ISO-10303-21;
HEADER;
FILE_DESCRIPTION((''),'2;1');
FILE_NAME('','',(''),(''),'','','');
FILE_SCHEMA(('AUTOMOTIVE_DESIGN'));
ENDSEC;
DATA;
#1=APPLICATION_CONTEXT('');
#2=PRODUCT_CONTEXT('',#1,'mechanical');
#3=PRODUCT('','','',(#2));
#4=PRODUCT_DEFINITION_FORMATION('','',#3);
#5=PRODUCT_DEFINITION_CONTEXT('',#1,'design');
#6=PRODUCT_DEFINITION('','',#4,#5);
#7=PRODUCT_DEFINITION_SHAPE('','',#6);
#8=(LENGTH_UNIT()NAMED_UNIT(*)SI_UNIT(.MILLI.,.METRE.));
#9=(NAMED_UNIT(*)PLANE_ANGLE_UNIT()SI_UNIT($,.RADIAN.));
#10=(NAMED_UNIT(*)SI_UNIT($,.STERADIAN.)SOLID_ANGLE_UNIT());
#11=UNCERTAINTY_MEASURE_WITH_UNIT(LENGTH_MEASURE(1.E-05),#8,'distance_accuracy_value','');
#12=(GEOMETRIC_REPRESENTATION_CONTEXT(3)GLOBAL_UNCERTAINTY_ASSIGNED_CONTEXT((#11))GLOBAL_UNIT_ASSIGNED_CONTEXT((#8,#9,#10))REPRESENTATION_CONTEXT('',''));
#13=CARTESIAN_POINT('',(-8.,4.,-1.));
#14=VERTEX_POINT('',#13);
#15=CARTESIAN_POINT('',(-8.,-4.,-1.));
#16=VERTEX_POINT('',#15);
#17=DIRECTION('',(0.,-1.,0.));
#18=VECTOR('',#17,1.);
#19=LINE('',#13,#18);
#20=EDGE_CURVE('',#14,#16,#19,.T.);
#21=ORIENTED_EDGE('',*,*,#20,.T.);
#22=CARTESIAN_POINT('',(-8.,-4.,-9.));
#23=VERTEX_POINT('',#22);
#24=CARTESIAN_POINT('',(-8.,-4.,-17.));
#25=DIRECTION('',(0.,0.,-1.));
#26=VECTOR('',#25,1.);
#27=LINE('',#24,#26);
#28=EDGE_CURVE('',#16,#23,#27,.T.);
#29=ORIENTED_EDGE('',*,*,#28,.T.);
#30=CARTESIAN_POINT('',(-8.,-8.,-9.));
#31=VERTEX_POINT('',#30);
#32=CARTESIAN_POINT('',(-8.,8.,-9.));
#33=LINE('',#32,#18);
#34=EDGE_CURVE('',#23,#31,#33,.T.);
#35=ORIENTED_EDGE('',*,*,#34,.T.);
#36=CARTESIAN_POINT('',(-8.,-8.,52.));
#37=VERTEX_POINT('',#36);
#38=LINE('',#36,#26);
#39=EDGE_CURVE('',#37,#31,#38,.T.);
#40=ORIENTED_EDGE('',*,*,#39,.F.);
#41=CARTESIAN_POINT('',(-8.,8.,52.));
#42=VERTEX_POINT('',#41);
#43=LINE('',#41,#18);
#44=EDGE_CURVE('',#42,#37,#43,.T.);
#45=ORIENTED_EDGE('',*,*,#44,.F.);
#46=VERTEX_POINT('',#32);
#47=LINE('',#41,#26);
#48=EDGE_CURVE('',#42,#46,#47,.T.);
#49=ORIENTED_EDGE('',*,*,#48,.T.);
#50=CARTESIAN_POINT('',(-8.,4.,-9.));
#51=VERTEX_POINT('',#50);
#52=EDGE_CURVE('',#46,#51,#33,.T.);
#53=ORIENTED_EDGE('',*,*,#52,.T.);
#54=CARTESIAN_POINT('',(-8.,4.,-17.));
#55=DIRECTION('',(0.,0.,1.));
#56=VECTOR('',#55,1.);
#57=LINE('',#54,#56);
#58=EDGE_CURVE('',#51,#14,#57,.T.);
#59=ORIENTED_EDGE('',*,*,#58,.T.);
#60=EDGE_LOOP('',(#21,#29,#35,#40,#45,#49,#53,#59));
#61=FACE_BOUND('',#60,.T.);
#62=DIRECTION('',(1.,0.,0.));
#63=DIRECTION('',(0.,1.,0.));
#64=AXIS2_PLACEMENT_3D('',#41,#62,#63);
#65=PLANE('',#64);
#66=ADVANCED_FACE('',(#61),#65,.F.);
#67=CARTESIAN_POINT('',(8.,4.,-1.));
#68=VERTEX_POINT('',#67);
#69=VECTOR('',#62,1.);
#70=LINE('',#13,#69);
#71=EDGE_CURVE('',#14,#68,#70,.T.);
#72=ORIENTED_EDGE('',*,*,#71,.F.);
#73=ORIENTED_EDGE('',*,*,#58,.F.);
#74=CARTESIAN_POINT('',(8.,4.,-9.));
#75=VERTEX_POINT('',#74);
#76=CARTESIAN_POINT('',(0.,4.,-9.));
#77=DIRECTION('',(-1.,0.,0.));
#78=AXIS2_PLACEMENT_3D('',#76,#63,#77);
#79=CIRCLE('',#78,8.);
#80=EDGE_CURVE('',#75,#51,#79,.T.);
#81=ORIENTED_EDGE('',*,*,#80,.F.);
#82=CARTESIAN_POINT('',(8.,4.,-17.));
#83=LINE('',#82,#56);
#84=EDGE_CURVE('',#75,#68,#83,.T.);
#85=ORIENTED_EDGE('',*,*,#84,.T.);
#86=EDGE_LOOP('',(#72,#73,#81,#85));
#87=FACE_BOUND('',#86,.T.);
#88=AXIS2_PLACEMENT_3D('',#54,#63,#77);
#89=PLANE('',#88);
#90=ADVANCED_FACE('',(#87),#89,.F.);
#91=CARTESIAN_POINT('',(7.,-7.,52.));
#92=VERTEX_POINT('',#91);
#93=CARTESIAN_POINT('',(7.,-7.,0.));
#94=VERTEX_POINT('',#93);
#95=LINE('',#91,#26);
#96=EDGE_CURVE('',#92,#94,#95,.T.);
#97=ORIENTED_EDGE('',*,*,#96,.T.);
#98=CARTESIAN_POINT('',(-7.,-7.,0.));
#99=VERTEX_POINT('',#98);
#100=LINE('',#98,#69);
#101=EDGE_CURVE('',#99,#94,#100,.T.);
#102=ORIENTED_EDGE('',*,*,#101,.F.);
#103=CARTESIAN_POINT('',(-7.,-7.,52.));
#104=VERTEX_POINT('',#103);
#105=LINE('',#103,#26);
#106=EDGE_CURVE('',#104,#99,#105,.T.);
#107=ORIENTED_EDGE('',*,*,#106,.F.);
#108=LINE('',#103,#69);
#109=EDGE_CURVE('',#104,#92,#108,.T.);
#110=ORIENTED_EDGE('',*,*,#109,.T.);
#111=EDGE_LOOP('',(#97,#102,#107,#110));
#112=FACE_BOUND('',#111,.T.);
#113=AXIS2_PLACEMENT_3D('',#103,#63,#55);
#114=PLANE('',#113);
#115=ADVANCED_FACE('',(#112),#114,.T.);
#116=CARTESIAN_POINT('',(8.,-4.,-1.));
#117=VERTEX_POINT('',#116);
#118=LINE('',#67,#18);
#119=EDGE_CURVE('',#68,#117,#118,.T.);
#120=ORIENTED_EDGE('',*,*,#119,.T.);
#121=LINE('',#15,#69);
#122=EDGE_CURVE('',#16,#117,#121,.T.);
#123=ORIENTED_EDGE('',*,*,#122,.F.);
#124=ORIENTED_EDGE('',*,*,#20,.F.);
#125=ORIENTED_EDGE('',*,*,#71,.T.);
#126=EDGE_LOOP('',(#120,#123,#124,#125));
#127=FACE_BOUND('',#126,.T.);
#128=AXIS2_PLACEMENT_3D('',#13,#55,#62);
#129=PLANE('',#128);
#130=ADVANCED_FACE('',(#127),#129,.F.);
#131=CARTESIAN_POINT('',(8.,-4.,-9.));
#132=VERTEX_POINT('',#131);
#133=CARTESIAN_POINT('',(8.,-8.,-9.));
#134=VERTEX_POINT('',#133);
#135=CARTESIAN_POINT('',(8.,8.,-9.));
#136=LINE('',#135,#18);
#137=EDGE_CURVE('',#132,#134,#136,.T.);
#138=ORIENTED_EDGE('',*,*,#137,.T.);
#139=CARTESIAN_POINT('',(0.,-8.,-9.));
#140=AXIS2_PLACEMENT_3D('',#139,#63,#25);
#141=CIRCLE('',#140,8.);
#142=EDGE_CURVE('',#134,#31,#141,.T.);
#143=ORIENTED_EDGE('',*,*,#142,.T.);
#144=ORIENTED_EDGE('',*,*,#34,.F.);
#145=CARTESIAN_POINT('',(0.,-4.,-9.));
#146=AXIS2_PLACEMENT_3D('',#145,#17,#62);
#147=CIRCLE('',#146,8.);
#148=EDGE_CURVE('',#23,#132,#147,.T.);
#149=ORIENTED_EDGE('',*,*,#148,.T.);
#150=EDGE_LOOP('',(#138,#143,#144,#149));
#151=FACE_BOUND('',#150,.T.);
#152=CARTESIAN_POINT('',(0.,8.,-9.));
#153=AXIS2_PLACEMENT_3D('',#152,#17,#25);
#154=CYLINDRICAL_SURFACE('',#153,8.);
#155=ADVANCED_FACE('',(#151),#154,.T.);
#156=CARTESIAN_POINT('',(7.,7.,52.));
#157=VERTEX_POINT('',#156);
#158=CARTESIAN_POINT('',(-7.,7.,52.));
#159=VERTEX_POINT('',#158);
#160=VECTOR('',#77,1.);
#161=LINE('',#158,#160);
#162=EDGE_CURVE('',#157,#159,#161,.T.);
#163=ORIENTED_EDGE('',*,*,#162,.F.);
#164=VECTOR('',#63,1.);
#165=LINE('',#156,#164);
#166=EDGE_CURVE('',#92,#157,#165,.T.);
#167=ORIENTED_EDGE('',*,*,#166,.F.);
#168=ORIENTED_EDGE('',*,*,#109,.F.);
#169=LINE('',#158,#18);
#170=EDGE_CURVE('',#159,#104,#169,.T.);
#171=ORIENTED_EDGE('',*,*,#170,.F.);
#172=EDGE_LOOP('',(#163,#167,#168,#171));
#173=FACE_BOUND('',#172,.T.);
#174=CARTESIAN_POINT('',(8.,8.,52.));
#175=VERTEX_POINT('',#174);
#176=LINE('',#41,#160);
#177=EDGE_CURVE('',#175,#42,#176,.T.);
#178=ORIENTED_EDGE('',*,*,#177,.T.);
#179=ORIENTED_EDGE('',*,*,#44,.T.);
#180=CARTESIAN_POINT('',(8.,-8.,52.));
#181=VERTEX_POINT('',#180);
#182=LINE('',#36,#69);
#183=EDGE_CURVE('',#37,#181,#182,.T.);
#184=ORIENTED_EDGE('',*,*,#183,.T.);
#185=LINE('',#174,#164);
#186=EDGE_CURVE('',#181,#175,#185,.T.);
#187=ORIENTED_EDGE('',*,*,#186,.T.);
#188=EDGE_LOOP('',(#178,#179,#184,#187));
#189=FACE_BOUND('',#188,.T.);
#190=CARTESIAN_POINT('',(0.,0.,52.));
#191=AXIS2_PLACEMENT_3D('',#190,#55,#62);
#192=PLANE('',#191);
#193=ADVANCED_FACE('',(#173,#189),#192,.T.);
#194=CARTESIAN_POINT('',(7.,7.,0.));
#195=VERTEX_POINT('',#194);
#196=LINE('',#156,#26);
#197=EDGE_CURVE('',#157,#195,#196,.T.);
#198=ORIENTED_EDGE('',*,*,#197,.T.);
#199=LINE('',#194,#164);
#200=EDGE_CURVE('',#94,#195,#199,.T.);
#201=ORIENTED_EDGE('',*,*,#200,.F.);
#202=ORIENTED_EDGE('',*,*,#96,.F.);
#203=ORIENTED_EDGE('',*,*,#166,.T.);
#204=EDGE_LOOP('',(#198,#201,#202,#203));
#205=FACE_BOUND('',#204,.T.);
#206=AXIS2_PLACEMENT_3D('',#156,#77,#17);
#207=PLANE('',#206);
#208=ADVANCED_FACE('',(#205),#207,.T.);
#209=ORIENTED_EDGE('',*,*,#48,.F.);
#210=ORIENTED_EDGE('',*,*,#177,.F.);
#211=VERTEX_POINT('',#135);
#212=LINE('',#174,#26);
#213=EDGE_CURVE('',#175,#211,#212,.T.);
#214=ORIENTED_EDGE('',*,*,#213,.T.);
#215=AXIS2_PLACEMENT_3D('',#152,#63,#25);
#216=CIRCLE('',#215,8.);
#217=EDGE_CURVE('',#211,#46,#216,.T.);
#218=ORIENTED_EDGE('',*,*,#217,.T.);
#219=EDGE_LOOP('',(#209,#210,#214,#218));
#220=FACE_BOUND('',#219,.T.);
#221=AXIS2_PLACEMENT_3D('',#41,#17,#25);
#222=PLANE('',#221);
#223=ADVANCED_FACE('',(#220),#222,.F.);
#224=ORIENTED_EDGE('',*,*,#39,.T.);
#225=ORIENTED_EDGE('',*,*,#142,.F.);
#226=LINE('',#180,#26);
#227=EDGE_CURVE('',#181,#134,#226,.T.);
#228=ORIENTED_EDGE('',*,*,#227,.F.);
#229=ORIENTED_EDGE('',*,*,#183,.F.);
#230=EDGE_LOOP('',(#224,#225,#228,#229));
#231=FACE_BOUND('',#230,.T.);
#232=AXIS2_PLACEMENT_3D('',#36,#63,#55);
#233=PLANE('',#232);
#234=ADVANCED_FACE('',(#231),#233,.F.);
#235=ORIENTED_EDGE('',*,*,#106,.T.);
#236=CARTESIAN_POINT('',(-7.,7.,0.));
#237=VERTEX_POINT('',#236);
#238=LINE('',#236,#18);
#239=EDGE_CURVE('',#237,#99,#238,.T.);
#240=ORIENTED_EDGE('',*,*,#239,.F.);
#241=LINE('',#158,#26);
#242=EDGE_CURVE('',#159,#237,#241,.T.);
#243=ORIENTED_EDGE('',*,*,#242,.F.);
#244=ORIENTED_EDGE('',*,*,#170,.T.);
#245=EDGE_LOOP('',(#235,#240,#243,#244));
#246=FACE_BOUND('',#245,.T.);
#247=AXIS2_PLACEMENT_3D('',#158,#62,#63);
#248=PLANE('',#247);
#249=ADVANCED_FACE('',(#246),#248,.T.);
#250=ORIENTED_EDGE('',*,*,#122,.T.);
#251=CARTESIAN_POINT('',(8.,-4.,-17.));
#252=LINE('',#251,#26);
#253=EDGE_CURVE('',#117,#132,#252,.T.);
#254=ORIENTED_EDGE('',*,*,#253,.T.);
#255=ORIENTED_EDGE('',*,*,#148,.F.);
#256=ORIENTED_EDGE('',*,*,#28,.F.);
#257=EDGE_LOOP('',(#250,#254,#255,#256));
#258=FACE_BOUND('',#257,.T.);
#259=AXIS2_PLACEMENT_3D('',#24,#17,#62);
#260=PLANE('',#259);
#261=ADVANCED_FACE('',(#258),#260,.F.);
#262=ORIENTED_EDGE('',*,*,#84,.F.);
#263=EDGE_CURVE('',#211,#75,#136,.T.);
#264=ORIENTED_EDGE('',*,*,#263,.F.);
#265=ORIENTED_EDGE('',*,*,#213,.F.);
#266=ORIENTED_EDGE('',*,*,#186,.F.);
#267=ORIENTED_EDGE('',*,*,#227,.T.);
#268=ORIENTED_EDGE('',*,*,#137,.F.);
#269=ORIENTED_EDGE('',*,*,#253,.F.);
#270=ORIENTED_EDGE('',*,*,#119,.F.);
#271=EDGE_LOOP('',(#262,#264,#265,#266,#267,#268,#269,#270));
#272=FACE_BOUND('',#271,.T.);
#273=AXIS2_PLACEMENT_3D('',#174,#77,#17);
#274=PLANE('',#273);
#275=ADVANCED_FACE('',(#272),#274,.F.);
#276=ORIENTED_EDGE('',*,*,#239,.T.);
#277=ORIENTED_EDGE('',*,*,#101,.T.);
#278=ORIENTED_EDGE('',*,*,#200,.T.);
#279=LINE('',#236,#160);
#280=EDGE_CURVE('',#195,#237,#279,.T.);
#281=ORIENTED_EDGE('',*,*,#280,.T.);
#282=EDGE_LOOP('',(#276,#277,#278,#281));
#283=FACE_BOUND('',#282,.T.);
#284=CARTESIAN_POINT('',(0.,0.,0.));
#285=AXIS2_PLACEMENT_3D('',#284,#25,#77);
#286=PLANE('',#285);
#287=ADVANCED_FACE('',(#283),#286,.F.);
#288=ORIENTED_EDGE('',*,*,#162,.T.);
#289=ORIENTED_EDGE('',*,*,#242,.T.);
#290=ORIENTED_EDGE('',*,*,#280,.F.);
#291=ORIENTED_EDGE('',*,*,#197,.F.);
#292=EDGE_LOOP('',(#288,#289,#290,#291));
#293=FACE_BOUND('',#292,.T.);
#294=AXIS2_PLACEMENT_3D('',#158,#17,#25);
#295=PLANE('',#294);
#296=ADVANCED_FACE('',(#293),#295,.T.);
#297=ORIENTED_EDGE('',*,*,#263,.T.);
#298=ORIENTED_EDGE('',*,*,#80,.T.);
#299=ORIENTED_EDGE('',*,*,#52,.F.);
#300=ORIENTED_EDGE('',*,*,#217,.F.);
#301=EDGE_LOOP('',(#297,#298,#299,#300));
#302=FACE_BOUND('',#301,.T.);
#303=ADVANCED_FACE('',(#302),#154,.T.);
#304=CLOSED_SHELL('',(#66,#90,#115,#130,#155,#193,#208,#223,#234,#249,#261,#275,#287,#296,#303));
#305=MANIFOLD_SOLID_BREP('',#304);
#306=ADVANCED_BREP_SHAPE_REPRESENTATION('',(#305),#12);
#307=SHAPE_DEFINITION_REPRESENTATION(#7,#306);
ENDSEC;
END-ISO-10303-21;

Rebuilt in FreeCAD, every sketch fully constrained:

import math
import FreeCAD as App
import Part
import Sketcher

V = App.Vector
Q = App.Units.Quantity

doc = App.newDocument("Part")
body = doc.addObject("PartDesign::Body", "Body")

sketch1 = doc.addObject("Sketcher::SketchObject", "Sketch")
body.addObject(sketch1)
sketch1.AttachmentSupport = (doc.XY_Plane, [""])
sketch1.MapMode = "FlatFace"
sketch1.addGeometry([
    Part.LineSegment(V(-8, 8, 0), V(-8, -8, 0)),
    Part.LineSegment(V(-8, -8, 0), V(8, -8, 0)),
    Part.LineSegment(V(8, -8, 0), V(8, 8, 0)),
    Part.LineSegment(V(8, 8, 0), V(-8, 8, 0)),
    Part.LineSegment(V(7, -7, 0), V(-7, -7, 0)),
    Part.LineSegment(V(-7, -7, 0), V(-7, 7, 0)),
    Part.LineSegment(V(-7, 7, 0), V(7, 7, 0)),
    Part.LineSegment(V(7, 7, 0), V(7, -7, 0)),
], False)
sketch1.addConstraint([
    Sketcher.Constraint("Coincident", 0, 2, 1, 1),
    Sketcher.Constraint("Coincident", 1, 2, 2, 1),
    Sketcher.Constraint("Coincident", 2, 2, 3, 1),
    Sketcher.Constraint("Coincident", 3, 2, 0, 1),
    Sketcher.Constraint("Coincident", 4, 2, 5, 1),
    Sketcher.Constraint("Coincident", 5, 2, 6, 1),
    Sketcher.Constraint("Coincident", 6, 2, 7, 1),
    Sketcher.Constraint("Coincident", 7, 2, 4, 1),
    Sketcher.Constraint("Vertical", 0),
    Sketcher.Constraint("Horizontal", 1),
    Sketcher.Constraint("Vertical", 2),
    Sketcher.Constraint("Horizontal", 3),
    Sketcher.Constraint("Horizontal", 4),
    Sketcher.Constraint("Vertical", 5),
    Sketcher.Constraint("Horizontal", 6),
    Sketcher.Constraint("Vertical", 7),
    Sketcher.Constraint("Symmetric", 0, 2, 2, 2, -1, 1),
    Sketcher.Constraint("Symmetric", 4, 2, 6, 2, -1, 1),
    Sketcher.Constraint("Equal", 3, 0),
    Sketcher.Constraint("Equal", 6, 5),
    Sketcher.Constraint("DistanceX", 1, 1, 1, 2, Q("16 mm")),
    Sketcher.Constraint("DistanceX", 4, 2, 4, 1, Q("14 mm")),
])
pad1 = doc.addObject("PartDesign::Pad", "Pad")
body.addObject(pad1)
pad1.Profile = sketch1
pad1.Length = 52

sketch2 = doc.addObject("Sketcher::SketchObject", "Sketch001")
body.addObject(sketch2)
sketch2.AttachmentSupport = (doc.XY_Plane, [""])
sketch2.MapMode = "FlatFace"
sketch2.addGeometry([
    Part.LineSegment(V(8, 8, 0), V(8, -8, 0)),
    Part.LineSegment(V(8, -8, 0), V(-8, -8, 0)),
    Part.LineSegment(V(-8, -8, 0), V(-8, 8, 0)),
    Part.LineSegment(V(-8, 8, 0), V(8, 8, 0)),
], False)
sketch2.addConstraint([
    Sketcher.Constraint("Coincident", 0, 2, 1, 1),
    Sketcher.Constraint("Coincident", 1, 2, 2, 1),
    Sketcher.Constraint("Coincident", 2, 2, 3, 1),
    Sketcher.Constraint("Coincident", 3, 2, 0, 1),
    Sketcher.Constraint("Vertical", 0),
    Sketcher.Constraint("Horizontal", 1),
    Sketcher.Constraint("Vertical", 2),
    Sketcher.Constraint("Horizontal", 3),
    Sketcher.Constraint("Symmetric", 0, 2, 2, 2, -1, 1),
    Sketcher.Constraint("Equal", 3, 0),
    Sketcher.Constraint("DistanceX", 1, 2, 1, 1, Q("16 mm")),
])
pad2 = doc.addObject("PartDesign::Pad", "Pad001")
body.addObject(pad2)
pad2.Profile = sketch2
pad2.Length = 1
pad2.Reversed = True

sketch3 = doc.addObject("Sketcher::SketchObject", "Sketch002")
body.addObject(sketch3)
sketch3.AttachmentSupport = (doc.XY_Plane, [""])
sketch3.MapMode = "FlatFace"
sketch3.AttachmentOffset = App.Placement(V(0, 0, -1), App.Rotation())
sketch3.addGeometry([
    Part.LineSegment(V(8, 8, 0), V(8, -8, 0)),
    Part.LineSegment(V(8, -8, 0), V(-8, -8, 0)),
    Part.LineSegment(V(-8, -8, 0), V(-8, 8, 0)),
    Part.LineSegment(V(-8, 8, 0), V(8, 8, 0)),
], False)
sketch3.addConstraint([
    Sketcher.Constraint("Coincident", 0, 2, 1, 1),
    Sketcher.Constraint("Coincident", 1, 2, 2, 1),
    Sketcher.Constraint("Coincident", 2, 2, 3, 1),
    Sketcher.Constraint("Coincident", 3, 2, 0, 1),
    Sketcher.Constraint("Vertical", 0),
    Sketcher.Constraint("Horizontal", 1),
    Sketcher.Constraint("Vertical", 2),
    Sketcher.Constraint("Horizontal", 3),
    Sketcher.Constraint("Symmetric", 0, 2, 2, 2, -1, 1),
    Sketcher.Constraint("Equal", 3, 0),
    Sketcher.Constraint("DistanceX", 1, 2, 1, 1, Q("16 mm")),
])
pad3 = doc.addObject("PartDesign::Pad", "Pad002")
body.addObject(pad3)
pad3.Profile = sketch3
pad3.Length = 16
pad3.Reversed = True

sketch4 = doc.addObject("Sketcher::SketchObject", "Sketch003")
body.addObject(sketch4)
sketch4.AttachmentSupport = (doc.XZ_Plane, [""])
sketch4.MapMode = "FlatFace"
sketch4.AttachmentOffset = App.Placement(V(0, 0, 8), App.Rotation())
sketch4.addGeometry([
    Part.LineSegment(V(-8, -9, 0), V(-8, -22, 0)),
    Part.LineSegment(V(-8, -22, 0), V(8, -22, 0)),
    Part.LineSegment(V(8, -22, 0), V(8, -9, 0)),
    Part.ArcOfCircle(Part.Circle(V(0, -9, 0), V(0, 0, 1), 8), math.radians(180), math.radians(360)),
], False)
sketch4.addConstraint([
    Sketcher.Constraint("Coincident", 0, 2, 1, 1),
    Sketcher.Constraint("Coincident", 1, 2, 2, 1),
    Sketcher.Constraint("Tangent", 2, 2, 3, 2),
    Sketcher.Constraint("Tangent", 3, 1, 0, 1),
    Sketcher.Constraint("Vertical", 0),
    Sketcher.Constraint("Horizontal", 1),
    Sketcher.Constraint("Vertical", 2),
    Sketcher.Constraint("PointOnObject", 3, 3, -2),
    Sketcher.Constraint("Radius", 3, Q("8 mm")),
    Sketcher.Constraint("DistanceY", 3, 3, -1, 1, Q("9 mm")),
    Sketcher.Constraint("DistanceY", 0, 2, 0, 1, Q("12.563954 mm")),
])
pocket1 = doc.addObject("PartDesign::Pocket", "Pocket")
body.addObject(pocket1)
pocket1.Profile = sketch4
pocket1.Length = 16

sketch5 = doc.addObject("Sketcher::SketchObject", "Sketch004")
body.addObject(sketch5)
sketch5.AttachmentSupport = (doc.YZ_Plane, [""])
sketch5.MapMode = "FlatFace"
sketch5.AttachmentOffset = App.Placement(V(0, 0, 8), App.Rotation())
sketch5.addGeometry([
    Part.LineSegment(V(4, -1, 0), V(-4, -1, 0)),
    Part.LineSegment(V(-4, -1, 0), V(-4, -17, 0)),
    Part.LineSegment(V(-4, -17, 0), V(4, -17, 0)),
    Part.LineSegment(V(4, -17, 0), V(4, -1, 0)),
], False)
sketch5.addConstraint([
    Sketcher.Constraint("Coincident", 0, 2, 1, 1),
    Sketcher.Constraint("Coincident", 1, 2, 2, 1),
    Sketcher.Constraint("Coincident", 2, 2, 3, 1),
    Sketcher.Constraint("Coincident", 3, 2, 0, 1),
    Sketcher.Constraint("Horizontal", 0),
    Sketcher.Constraint("Vertical", 1),
    Sketcher.Constraint("Horizontal", 2),
    Sketcher.Constraint("Vertical", 3),
    Sketcher.Constraint("DistanceX", 0, 2, 0, 1, Q("8 mm")),
    Sketcher.Constraint("DistanceY", 1, 2, 1, 1, Q("16 mm")),
    Sketcher.Constraint("DistanceX", 0, 2, -1, 1, Q("4 mm")),
    Sketcher.Constraint("DistanceY", 0, 2, -1, 1, Q("1 mm")),
])
pocket2 = doc.addObject("PartDesign::Pocket", "Pocket001")
body.addObject(pocket2)
pocket2.Profile = sketch5
pocket2.Type = "ThroughAll"

doc.recompute()
